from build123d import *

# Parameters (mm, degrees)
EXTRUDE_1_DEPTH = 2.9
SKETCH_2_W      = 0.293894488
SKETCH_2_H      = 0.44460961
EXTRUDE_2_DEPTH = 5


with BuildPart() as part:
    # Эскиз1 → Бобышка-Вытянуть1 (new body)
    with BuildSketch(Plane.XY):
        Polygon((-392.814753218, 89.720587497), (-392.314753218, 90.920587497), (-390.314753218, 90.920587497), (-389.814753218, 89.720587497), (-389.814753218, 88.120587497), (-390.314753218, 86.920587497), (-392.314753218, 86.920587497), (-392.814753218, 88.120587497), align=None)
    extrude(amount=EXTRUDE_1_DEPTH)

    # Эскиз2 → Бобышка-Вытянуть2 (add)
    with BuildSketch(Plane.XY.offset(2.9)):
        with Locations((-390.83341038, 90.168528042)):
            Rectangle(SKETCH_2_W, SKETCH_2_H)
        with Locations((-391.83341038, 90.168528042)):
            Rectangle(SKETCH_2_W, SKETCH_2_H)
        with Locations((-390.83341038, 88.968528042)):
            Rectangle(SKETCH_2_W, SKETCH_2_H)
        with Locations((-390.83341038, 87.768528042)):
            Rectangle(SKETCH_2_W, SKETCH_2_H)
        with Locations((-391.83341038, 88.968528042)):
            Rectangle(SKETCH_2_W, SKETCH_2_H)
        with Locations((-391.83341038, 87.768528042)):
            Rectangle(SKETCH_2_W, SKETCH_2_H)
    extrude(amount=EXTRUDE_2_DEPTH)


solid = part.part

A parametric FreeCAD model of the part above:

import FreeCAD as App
import Part
import Sketcher

V = App.Vector
Q = App.Units.Quantity

doc = App.newDocument("Part")
params = doc.addObject("Spreadsheet::Sheet", "Params")
for row, (alias, value) in enumerate([
    ("sketch1_width", "2 mm"),
    ("sketch1_height", "1.6 mm"),
    ("pad1_length", "2.9 mm"),
    ("pad2_length", "5 mm"),
], start=1):
    params.set(f"A{row}", alias)
    params.set(f"B{row}", "=" + value)
    params.setAlias(f"B{row}", alias)

body = doc.addObject("PartDesign::Body", "Body")

# Sketch on XY plane
sketch1 = body.newObject("Sketcher::SketchObject", "Sketch")
sketch1.AttachmentSupport = (doc.getObject("XY_Plane"), [""])
sketch1.MapMode = "FlatFace"
sketch1.addGeometry(Part.LineSegment(V(-392.314753, 90.920587, 0), V(-392.814753, 89.720587, 0)), False)
sketch1.addGeometry(Part.LineSegment(V(-392.814753, 89.720587, 0), V(-392.814753, 88.120587, 0)), False)
sketch1.addGeometry(Part.LineSegment(V(-392.814753, 88.120587, 0), V(-392.314753, 86.920587, 0)), False)
sketch1.addGeometry(Part.LineSegment(V(-392.314753, 86.920587, 0), V(-390.314753, 86.920587, 0)), False)
sketch1.addGeometry(Part.LineSegment(V(-390.314753, 86.920587, 0), V(-389.814753, 88.120587, 0)), False)
sketch1.addGeometry(Part.LineSegment(V(-389.814753, 88.120587, 0), V(-389.814753, 89.720587, 0)), False)
sketch1.addGeometry(Part.LineSegment(V(-389.814753, 89.720587, 0), V(-390.314753, 90.920587, 0)), False)
sketch1.addGeometry(Part.LineSegment(V(-390.314753, 90.920587, 0), V(-392.314753, 90.920587, 0)), False)
sketch1.addConstraint(Sketcher.Constraint("Coincident", 0, 2, 1, 1))
sketch1.addConstraint(Sketcher.Constraint("Coincident", 1, 2, 2, 1))
sketch1.addConstraint(Sketcher.Constraint("Coincident", 2, 2, 3, 1))
sketch1.addConstraint(Sketcher.Constraint("Coincident", 3, 2, 4, 1))
sketch1.addConstraint(Sketcher.Constraint("Coincident", 4, 2, 5, 1))
sketch1.addConstraint(Sketcher.Constraint("Coincident", 5, 2, 6, 1))
sketch1.addConstraint(Sketcher.Constraint("Coincident", 6, 2, 7, 1))
sketch1.addConstraint(Sketcher.Constraint("Coincident", 7, 2, 0, 1))
sketch1.addConstraint(Sketcher.Constraint("Vertical", 1))
sketch1.addConstraint(Sketcher.Constraint("Horizontal", 3))
sketch1.addConstraint(Sketcher.Constraint("Vertical", 5))
sketch1.addConstraint(Sketcher.Constraint("Horizontal", 7))
sketch1.addConstraint(Sketcher.Constraint("Parallel", 0, 4))
sketch1.addConstraint(Sketcher.Constraint("Parallel", 2, 6))
sketch1.addConstraint(Sketcher.Constraint("Horizontal", 1, 2, 4, 2))
sketch1.addConstraint(Sketcher.Constraint("Horizontal", 0, 2, 5, 2))
sketch1.addConstraint(Sketcher.Constraint("Vertical", 3, 2, 6, 2))
sketch1.addConstraint(Sketcher.Constraint("Vertical", 2, 2, 7, 2))
sketch1.addConstraint(Sketcher.Constraint("DistanceX", 3, 1, 3, 2, Q("2 mm")))
sketch1.addConstraint(Sketcher.Constraint("DistanceY", 1, 2, 1, 1, Q("1.6 mm")))
sketch1.addConstraint(Sketcher.Constraint("DistanceX", 1, 2, 4, 2, Q("3 mm")))
sketch1.addConstraint(Sketcher.Constraint("DistanceY", 3, 2, 6, 2, Q("4 mm")))
sketch1.addConstraint(Sketcher.Constraint("DistanceX", 0, 2, -1, 1, Q("392.814753 mm")))
sketch1.addConstraint(Sketcher.Constraint("DistanceY", -1, 1, 0, 2, Q("89.720587 mm")))
sketch1.setExpression("Constraints[18]", "Params.sketch1_width")
sketch1.setExpression("Constraints[19]", "Params.sketch1_height")
pad1 = body.newObject("PartDesign::Pad", "Pad")
pad1.Profile = sketch1
pad1.setExpression("Length", "Params.pad1_length")

# Sketch on XY plane
sketch2 = body.newObject("Sketcher::SketchObject", "Sketch001")
sketch2.AttachmentSupport = (doc.getObject("XY_Plane"), [""])
sketch2.MapMode = "FlatFace"
sketch2.AttachmentOffset = App.Placement(V(0, 0, 2.9), App.Rotation())
sketch2.addGeometry(Part.LineSegment(V(-390.980358, 90.390833, 0), V(-390.980358, 89.946223, 0)), False)
sketch2.addGeometry(Part.LineSegment(V(-390.980358, 89.946223, 0), V(-390.686463, 89.946223, 0)), False)
sketch2.addGeometry(Part.LineSegment(V(-390.686463, 89.946223, 0), V(-390.686463, 90.390833, 0)), False)
sketch2.addGeometry(Part.LineSegment(V(-390.686463, 90.390833, 0), V(-390.980358, 90.390833, 0)), False)
sketch2.addGeometry(Part.LineSegment(V(-391.980358, 90.390833, 0), V(-391.980358, 89.946223, 0)), False)
sketch2.addGeometry(Part.LineSegment(V(-391.980358, 89.946223, 0), V(-391.686463, 89.946223, 0)), False)
sketch2.addGeometry(Part.LineSegment(V(-391.686463, 89.946223, 0), V(-391.686463, 90.390833, 0)), False)
sketch2.addGeometry(Part.LineSegment(V(-391.686463, 90.390833, 0), V(-391.980358, 90.390833, 0)), False)
sketch2.addGeometry(Part.LineSegment(V(-390.980358, 89.190833, 0), V(-390.980358, 88.746223, 0)), False)
sketch2.addGeometry(Part.LineSegment(V(-390.980358, 88.746223, 0), V(-390.686463, 88.746223, 0)), False)
sketch2.addGeometry(Part.LineSegment(V(-390.686463, 88.746223, 0), V(-390.686463, 89.190833, 0)), False)
sketch2.addGeometry(Part.LineSegment(V(-390.686463, 89.190833, 0), V(-390.980358, 89.190833, 0)), False)
sketch2.addGeometry(Part.LineSegment(V(-390.980358, 87.990833, 0), V(-390.980358, 87.546223, 0)), False)
sketch2.addGeometry(Part.LineSegment(V(-390.980358, 87.546223, 0), V(-390.686463, 87.546223, 0)), False)
sketch2.addGeometry(Part.LineSegment(V(-390.686463, 87.546223, 0), V(-390.686463, 87.990833, 0)), False)
sketch2.addGeometry(Part.LineSegment(V(-390.686463, 87.990833, 0), V(-390.980358, 87.990833, 0)), False)
sketch2.addGeometry(Part.LineSegment(V(-391.980358, 89.190833, 0), V(-391.980358, 88.746223, 0)), False)
sketch2.addGeometry(Part.LineSegment(V(-391.980358, 88.746223, 0), V(-391.686463, 88.746223, 0)), False)
sketch2.addGeometry(Part.LineSegment(V(-391.686463, 88.746223, 0), V(-391.686463, 89.190833, 0)), False)
sketch2.addGeometry(Part.LineSegment(V(-391.686463, 89.190833, 0), V(-391.980358, 89.190833, 0)), False)
sketch2.addGeometry(Part.LineSegment(V(-391.980358, 87.990833, 0), V(-391.980358, 87.546223, 0)), False)
sketch2.addGeometry(Part.LineSegment(V(-391.980358, 87.546223, 0), V(-391.686463, 87.546223, 0)), False)
sketch2.addGeometry(Part.LineSegment(V(-391.686463, 87.546223, 0), V(-391.686463, 87.990833, 0)), False)
sketch2.addGeometry(Part.LineSegment(V(-391.686463, 87.990833, 0), V(-391.980358, 87.990833, 0)), False)
sketch2.addConstraint(Sketcher.Constraint("Coincident", 0, 2, 1, 1))
sketch2.addConstraint(Sketcher.Constraint("Coincident", 1, 2, 2, 1))
sketch2.addConstraint(Sketcher.Constraint("Coincident", 2, 2, 3, 1))
sketch2.addConstraint(Sketcher.Constraint("Coincident", 3, 2, 0, 1))
sketch2.addConstraint(Sketcher.Constraint("Coincident", 4, 2, 5, 1))
sketch2.addConstraint(Sketcher.Constraint("Coincident", 5, 2, 6, 1))
sketch2.addConstraint(Sketcher.Constraint("Coincident", 6, 2, 7, 1))
sketch2.addConstraint(Sketcher.Constraint("Coincident", 7, 2, 4, 1))
sketch2.addConstraint(Sketcher.Constraint("Coincident", 8, 2, 9, 1))
sketch2.addConstraint(Sketcher.Constraint("Coincident", 9, 2, 10, 1))
sketch2.addConstraint(Sketcher.Constraint("Coincident", 10, 2, 11, 1))
sketch2.addConstraint(Sketcher.Constraint("Coincident", 11, 2, 8, 1))
sketch2.addConstraint(Sketcher.Constraint("Coincident", 12, 2, 13, 1))
sketch2.addConstraint(Sketcher.Constraint("Coincident", 13, 2, 14, 1))
sketch2.addConstraint(Sketcher.Constraint("Coincident", 14, 2, 15, 1))
sketch2.addConstraint(Sketcher.Constraint("Coincident", 15, 2, 12, 1))
sketch2.addConstraint(Sketcher.Constraint("Coincident", 16, 2, 17, 1))
sketch2.addConstraint(Sketcher.Constraint("Coincident", 17, 2, 18, 1))
sketch2.addConstraint(Sketcher.Constraint("Coincident", 18, 2, 19, 1))
sketch2.addConstraint(Sketcher.Constraint("Coincident", 19, 2, 16, 1))
sketch2.addConstraint(Sketcher.Constraint("Coincident", 20, 2, 21, 1))
sketch2.addConstraint(Sketcher.Constraint("Coincident", 21, 2, 22, 1))
sketch2.addConstraint(Sketcher.Constraint("Coincident", 22, 2, 23, 1))
sketch2.addConstraint(Sketcher.Constraint("Coincident", 23, 2, 20, 1))
sketch2.addConstraint(Sketcher.Constraint("Vertical", 0))
sketch2.addConstraint(Sketcher.Constraint("Horizontal", 1))
sketch2.addConstraint(Sketcher.Constraint("Vertical", 2))
sketch2.addConstraint(Sketcher.Constraint("Horizontal", 3))
sketch2.addConstraint(Sketcher.Constraint("Vertical", 4))
sketch2.addConstraint(Sketcher.Constraint("Horizontal", 5))
sketch2.addConstraint(Sketcher.Constraint("Vertical", 6))
sketch2.addConstraint(Sketcher.Constraint("Horizontal", 7))
sketch2.addConstraint(Sketcher.Constraint("Vertical", 8))
sketch2.addConstraint(Sketcher.Constraint("Horizontal", 9))
sketch2.addConstraint(Sketcher.Constraint("Vertical", 10))
sketch2.addConstraint(Sketcher.Constraint("Horizontal", 11))
sketch2.addConstraint(Sketcher.Constraint("Vertical", 12))
sketch2.addConstraint(Sketcher.Constraint("Horizontal", 13))
sketch2.addConstraint(Sketcher.Constraint("Vertical", 14))
sketch2.addConstraint(Sketcher.Constraint("Horizontal", 15))
sketch2.addConstraint(Sketcher.Constraint("Vertical", 16))
sketch2.addConstraint(Sketcher.Constraint("Horizontal", 17))
sketch2.addConstraint(Sketcher.Constraint("Vertical", 18))
sketch2.addConstraint(Sketcher.Constraint("Horizontal", 19))
sketch2.addConstraint(Sketcher.Constraint("Vertical", 20))
sketch2.addConstraint(Sketcher.Constraint("Horizontal", 21))
sketch2.addConstraint(Sketcher.Constraint("Vertical", 22))
sketch2.addConstraint(Sketcher.Constraint("Horizontal", 23))
sketch2.addConstraint(Sketcher.Constraint("Horizontal", 1, 2, 4, 2))
sketch2.addConstraint(Sketcher.Constraint("Horizontal", 3, 2, 6, 2))
sketch2.addConstraint(Sketcher.Constraint("Horizontal", 9, 2, 16, 2))
sketch2.addConstraint(Sketcher.Constraint("Horizontal", 11, 2, 18, 2))
sketch2.addConstraint(Sketcher.Constraint("Horizontal", 13, 2, 20, 2))
sketch2.addConstraint(Sketcher.Constraint("Horizontal", 15, 2, 22, 2))
sketch2.addConstraint(Sketcher.Constraint("Vertical", 3, 2, 8, 2))
sketch2.addConstraint(Sketcher.Constraint("Vertical", 2, 2, 9, 2))
sketch2.addConstraint(Sketcher.Constraint("Vertical", 11, 2, 12, 2))
sketch2.addConstraint(Sketcher.Constraint("Vertical", 10, 2, 13, 2))
sketch2.addConstraint(Sketcher.Constraint("Vertical", 7, 2, 16, 2))
sketch2.addConstraint(Sketcher.Constraint("Vertical", 6, 2, 17, 2))
sketch2.addConstraint(Sketcher.Constraint("Vertical", 19, 2, 20, 2))
sketch2.addConstraint(Sketcher.Constraint("Vertical", 18, 2, 21, 2))
sketch2.addConstraint(Sketcher.Constraint("Equal", 3, 5))
sketch2.addConstraint(Sketcher.Constraint("Equal", 6, 8))
sketch2.addConstraint(Sketcher.Constraint("Equal", 10, 12))
sketch2.addConstraint(Sketcher.Constraint("DistanceX", 4, 2, 0, 2, Q("1 mm")))
sketch2.addConstraint(Sketcher.Constraint("DistanceY", 8, 2, 0, 2, Q("1.2 mm")))
sketch2.addConstraint(Sketcher.Constraint("DistanceY", 12, 2, 8, 2, Q("1.2 mm")))
sketch2.addConstraint(Sketcher.Constraint("DistanceY", 0, 2, 0, 1, Q("0.44461 mm")))
sketch2.addConstraint(Sketcher.Constraint("DistanceX", 1, 1, 1, 2, Q("0.293894 mm")))
sketch2.addConstraint(Sketcher.Constraint("DistanceX", 0, 2, -1, 1, Q("390.980358 mm")))
sketch2.addConstraint(Sketcher.Constraint("DistanceY", -1, 1, 0, 2, Q("89.946223 mm")))
pad2 = body.newObject("PartDesign::Pad", "Pad001")
pad2.Profile = sketch2
pad2.setExpression("Length", "Params.pad2_length")

doc.recompute()
